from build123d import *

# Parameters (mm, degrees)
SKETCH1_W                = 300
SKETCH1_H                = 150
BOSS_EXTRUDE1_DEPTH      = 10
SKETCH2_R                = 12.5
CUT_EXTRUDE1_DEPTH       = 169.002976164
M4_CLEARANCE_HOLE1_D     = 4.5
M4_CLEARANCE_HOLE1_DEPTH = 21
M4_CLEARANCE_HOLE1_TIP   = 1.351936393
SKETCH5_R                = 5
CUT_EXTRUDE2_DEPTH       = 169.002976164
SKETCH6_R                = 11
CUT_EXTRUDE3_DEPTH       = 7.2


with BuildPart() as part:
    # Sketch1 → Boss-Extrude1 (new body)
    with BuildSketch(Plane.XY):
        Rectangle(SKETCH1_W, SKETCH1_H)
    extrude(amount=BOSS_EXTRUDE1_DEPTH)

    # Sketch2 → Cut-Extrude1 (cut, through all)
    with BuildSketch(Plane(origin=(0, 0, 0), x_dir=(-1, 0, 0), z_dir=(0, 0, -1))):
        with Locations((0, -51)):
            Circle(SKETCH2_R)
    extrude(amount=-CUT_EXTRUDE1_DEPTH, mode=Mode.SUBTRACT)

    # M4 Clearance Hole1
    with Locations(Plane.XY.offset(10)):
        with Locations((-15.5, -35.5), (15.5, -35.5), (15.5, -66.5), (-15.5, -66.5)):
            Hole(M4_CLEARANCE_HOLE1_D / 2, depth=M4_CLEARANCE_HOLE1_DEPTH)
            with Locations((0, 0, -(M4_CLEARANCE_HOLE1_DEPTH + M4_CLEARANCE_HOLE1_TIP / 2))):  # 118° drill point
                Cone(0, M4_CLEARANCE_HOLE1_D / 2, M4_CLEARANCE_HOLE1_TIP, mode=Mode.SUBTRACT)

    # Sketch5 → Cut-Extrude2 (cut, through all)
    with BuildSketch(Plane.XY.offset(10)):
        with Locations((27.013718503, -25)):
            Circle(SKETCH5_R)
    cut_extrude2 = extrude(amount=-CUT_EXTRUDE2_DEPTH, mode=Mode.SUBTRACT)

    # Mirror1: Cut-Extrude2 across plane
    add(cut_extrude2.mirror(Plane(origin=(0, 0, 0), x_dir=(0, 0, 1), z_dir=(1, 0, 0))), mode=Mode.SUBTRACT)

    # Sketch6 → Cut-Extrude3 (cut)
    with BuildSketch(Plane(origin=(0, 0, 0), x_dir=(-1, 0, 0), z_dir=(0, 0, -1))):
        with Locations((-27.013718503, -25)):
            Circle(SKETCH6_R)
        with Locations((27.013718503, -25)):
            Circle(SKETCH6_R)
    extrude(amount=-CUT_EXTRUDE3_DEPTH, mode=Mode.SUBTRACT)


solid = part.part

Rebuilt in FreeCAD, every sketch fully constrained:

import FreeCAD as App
import Part
import Sketcher
from FreeCAD import Vector


def add_polygon(sketch, points):
    """Adds a closed chain of lines whose ends are joined by coincident constraints."""
    first, n = sketch.GeometryCount, len(points)
    for a, b in zip(points, points[1:] + points[:1]):
        sketch.addGeometry(Part.LineSegment(App.Vector(*a, 0), App.Vector(*b, 0)), False)
    for i in range(n):
        sketch.addConstraint(Sketcher.Constraint("Coincident", first + i, 2, first + (i + 1) % n, 1))

doc = App.newDocument("Part")
body = doc.addObject("PartDesign::Body", "Body")

# Sketch on XY plane
sketch1 = body.newObject("Sketcher::SketchObject", "Sketch")
sketch1.AttachmentSupport = (doc.getObject("XY_Plane"), [""])
sketch1.MapMode = "FlatFace"
add_polygon(sketch1, [(-150, 75), (-150, -75), (150, -75), (150, 75)])  # lines 0-3
sketch1.addConstraint(Sketcher.Constraint("Vertical", 0))
sketch1.addConstraint(Sketcher.Constraint("Horizontal", 1))
sketch1.addConstraint(Sketcher.Constraint("Vertical", 2))
sketch1.addConstraint(Sketcher.Constraint("Horizontal", 3))
sketch1.addConstraint(Sketcher.Constraint("Symmetric", 0, 2, 2, 2, -1, 1))
sketch1.addConstraint(Sketcher.Constraint("DistanceX", 1, 1, 1, 2, 300.0))
sketch1.addConstraint(Sketcher.Constraint("DistanceY", 0, 2, 0, 1, 150.0))
pad1 = body.newObject("PartDesign::Pad", "Pad")
pad1.Profile = sketch1
pad1.Length = 10

# Sketch on XY plane
sketch2 = body.newObject("Sketcher::SketchObject", "Sketch001")
sketch2.AttachmentSupport = (doc.getObject("XY_Plane"), [""])
sketch2.MapMode = "FlatFace"
sketch2.addGeometry(Part.Circle(Vector(0, -51, 0), Vector(0, 0, 1), 12), False)
sketch2.addConstraint(Sketcher.Constraint("PointOnObject", 0, 3, -2))
sketch2.addConstraint(Sketcher.Constraint("Diameter", 0, 25.0))
sketch2.addConstraint(Sketcher.Constraint("DistanceY", 0, 3, -1, 1, 51.0))
pocket1 = body.newObject("PartDesign::Pocket", "Pocket")
pocket1.Profile = sketch2
pocket1.Type = "ThroughAll"
pocket1.Reversed = True

# Sketch on XY plane
sketch3 = body.newObject("Sketcher::SketchObject", "Sketch002")
sketch3.AttachmentSupport = (doc.getObject("XY_Plane"), [""])
sketch3.MapMode = "FlatFace"
sketch3.AttachmentOffset = App.Placement(Vector(0, 0, 10), App.Rotation())
sketch3.addGeometry(Part.Circle(Vector(-15.5, -35.5, 0), Vector(0, 0, 1), 2.2), False)
sketch3.addGeometry(Part.Circle(Vector(15.5, -35.5, 0), Vector(0, 0, 1), 2.2), False)
sketch3.addGeometry(Part.Circle(Vector(15.5, -66.5, 0), Vector(0, 0, 1), 2.2), False)
sketch3.addGeometry(Part.Circle(Vector(-15.5, -66.5, 0), Vector(0, 0, 1), 2.2), False)
sketch3.addConstraint(Sketcher.Constraint("Equal", 0, 1))
sketch3.addConstraint(Sketcher.Constraint("Equal", 1, 2))
sketch3.addConstraint(Sketcher.Constraint("Equal", 2, 3))
sketch3.addConstraint(Sketcher.Constraint("Symmetric", 0, 3, 1, 3, -2))
sketch3.addConstraint(Sketcher.Constraint("Symmetric", 2, 3, 3, 3, -2))
sketch3.addConstraint(Sketcher.Constraint("Vertical", 1, 3, 2, 3))
sketch3.addConstraint(Sketcher.Constraint("Diameter", 0, 4.5))
sketch3.addConstraint(Sketcher.Constraint("DistanceX", 0, 3, 1, 3, 31.0))
sketch3.addConstraint(Sketcher.Constraint("DistanceY", 2, 3, 1, 3, 31.0))
sketch3.addConstraint(Sketcher.Constraint("DistanceY", 0, 3, -1, 1, 35.5))
doc.recompute()
hole = body.newObject("PartDesign::Hole", "Hole")
hole.Profile = sketch3
hole.ThreadType = "None"
hole.Diameter = 4.5
hole.DepthType = "Dimension"
hole.Depth = 21
hole.DrillPoint = "Angled"
hole.DrillPointAngle = 118

# Sketch on XY plane
sketch4 = body.newObject("Sketcher::SketchObject", "Sketch003")
sketch4.AttachmentSupport = (doc.getObject("XY_Plane"), [""])
sketch4.MapMode = "FlatFace"
sketch4.AttachmentOffset = App.Placement(Vector(0, 0, 10), App.Rotation())
sketch4.addGeometry(Part.Circle(Vector(27, -25, 0), Vector(0, 0, 1), 5), False)
sketch4.addConstraint(Sketcher.Constraint("Diameter", 0, 10.0))
sketch4.addConstraint(Sketcher.Constraint("DistanceY", 0, 3, -1, 1, 25.0))
sketch4.addConstraint(Sketcher.Constraint("DistanceX", -1, 1, 0, 3, 27.013719))
pocket2 = body.newObject("PartDesign::Pocket", "Pocket001")
pocket2.Profile = sketch4
pocket2.Type = "ThroughAll"
doc.recompute()

mirrored = body.newObject("PartDesign::Mirrored", "Mirrored")
mirrored.Originals = [pocket2]
mirrored.MirrorPlane = (doc.getObject("YZ_Plane"), [""])
body.Tip = mirrored

# Sketch on XY plane
sketch5 = body.newObject("Sketcher::SketchObject", "Sketch004")
sketch5.AttachmentSupport = (doc.getObject("XY_Plane"), [""])
sketch5.MapMode = "FlatFace"
sketch5.addGeometry(Part.Circle(Vector(27, -25, 0), Vector(0, 0, 1), 11), False)
sketch5.addGeometry(Part.Circle(Vector(-27, -25, 0), Vector(0, 0, 1), 11), False)
sketch5.addConstraint(Sketcher.Constraint("Equal", 0, 1))
sketch5.addConstraint(Sketcher.Constraint("Symmetric", 0, 3, 1, 3, -2))
sketch5.addConstraint(Sketcher.Constraint("Diameter", 0, 22.0))
sketch5.addConstraint(Sketcher.Constraint("DistanceY", 0, 3, -1, 1, 25.0))
sketch5.addConstraint(Sketcher.Constraint("DistanceX", -1, 1, 0, 3, 27.013719))
pocket3 = body.newObject("PartDesign::Pocket", "Pocket002")
pocket3.Profile = sketch5
pocket3.Length = 7.2
pocket3.Reversed = True

doc.recompute()
